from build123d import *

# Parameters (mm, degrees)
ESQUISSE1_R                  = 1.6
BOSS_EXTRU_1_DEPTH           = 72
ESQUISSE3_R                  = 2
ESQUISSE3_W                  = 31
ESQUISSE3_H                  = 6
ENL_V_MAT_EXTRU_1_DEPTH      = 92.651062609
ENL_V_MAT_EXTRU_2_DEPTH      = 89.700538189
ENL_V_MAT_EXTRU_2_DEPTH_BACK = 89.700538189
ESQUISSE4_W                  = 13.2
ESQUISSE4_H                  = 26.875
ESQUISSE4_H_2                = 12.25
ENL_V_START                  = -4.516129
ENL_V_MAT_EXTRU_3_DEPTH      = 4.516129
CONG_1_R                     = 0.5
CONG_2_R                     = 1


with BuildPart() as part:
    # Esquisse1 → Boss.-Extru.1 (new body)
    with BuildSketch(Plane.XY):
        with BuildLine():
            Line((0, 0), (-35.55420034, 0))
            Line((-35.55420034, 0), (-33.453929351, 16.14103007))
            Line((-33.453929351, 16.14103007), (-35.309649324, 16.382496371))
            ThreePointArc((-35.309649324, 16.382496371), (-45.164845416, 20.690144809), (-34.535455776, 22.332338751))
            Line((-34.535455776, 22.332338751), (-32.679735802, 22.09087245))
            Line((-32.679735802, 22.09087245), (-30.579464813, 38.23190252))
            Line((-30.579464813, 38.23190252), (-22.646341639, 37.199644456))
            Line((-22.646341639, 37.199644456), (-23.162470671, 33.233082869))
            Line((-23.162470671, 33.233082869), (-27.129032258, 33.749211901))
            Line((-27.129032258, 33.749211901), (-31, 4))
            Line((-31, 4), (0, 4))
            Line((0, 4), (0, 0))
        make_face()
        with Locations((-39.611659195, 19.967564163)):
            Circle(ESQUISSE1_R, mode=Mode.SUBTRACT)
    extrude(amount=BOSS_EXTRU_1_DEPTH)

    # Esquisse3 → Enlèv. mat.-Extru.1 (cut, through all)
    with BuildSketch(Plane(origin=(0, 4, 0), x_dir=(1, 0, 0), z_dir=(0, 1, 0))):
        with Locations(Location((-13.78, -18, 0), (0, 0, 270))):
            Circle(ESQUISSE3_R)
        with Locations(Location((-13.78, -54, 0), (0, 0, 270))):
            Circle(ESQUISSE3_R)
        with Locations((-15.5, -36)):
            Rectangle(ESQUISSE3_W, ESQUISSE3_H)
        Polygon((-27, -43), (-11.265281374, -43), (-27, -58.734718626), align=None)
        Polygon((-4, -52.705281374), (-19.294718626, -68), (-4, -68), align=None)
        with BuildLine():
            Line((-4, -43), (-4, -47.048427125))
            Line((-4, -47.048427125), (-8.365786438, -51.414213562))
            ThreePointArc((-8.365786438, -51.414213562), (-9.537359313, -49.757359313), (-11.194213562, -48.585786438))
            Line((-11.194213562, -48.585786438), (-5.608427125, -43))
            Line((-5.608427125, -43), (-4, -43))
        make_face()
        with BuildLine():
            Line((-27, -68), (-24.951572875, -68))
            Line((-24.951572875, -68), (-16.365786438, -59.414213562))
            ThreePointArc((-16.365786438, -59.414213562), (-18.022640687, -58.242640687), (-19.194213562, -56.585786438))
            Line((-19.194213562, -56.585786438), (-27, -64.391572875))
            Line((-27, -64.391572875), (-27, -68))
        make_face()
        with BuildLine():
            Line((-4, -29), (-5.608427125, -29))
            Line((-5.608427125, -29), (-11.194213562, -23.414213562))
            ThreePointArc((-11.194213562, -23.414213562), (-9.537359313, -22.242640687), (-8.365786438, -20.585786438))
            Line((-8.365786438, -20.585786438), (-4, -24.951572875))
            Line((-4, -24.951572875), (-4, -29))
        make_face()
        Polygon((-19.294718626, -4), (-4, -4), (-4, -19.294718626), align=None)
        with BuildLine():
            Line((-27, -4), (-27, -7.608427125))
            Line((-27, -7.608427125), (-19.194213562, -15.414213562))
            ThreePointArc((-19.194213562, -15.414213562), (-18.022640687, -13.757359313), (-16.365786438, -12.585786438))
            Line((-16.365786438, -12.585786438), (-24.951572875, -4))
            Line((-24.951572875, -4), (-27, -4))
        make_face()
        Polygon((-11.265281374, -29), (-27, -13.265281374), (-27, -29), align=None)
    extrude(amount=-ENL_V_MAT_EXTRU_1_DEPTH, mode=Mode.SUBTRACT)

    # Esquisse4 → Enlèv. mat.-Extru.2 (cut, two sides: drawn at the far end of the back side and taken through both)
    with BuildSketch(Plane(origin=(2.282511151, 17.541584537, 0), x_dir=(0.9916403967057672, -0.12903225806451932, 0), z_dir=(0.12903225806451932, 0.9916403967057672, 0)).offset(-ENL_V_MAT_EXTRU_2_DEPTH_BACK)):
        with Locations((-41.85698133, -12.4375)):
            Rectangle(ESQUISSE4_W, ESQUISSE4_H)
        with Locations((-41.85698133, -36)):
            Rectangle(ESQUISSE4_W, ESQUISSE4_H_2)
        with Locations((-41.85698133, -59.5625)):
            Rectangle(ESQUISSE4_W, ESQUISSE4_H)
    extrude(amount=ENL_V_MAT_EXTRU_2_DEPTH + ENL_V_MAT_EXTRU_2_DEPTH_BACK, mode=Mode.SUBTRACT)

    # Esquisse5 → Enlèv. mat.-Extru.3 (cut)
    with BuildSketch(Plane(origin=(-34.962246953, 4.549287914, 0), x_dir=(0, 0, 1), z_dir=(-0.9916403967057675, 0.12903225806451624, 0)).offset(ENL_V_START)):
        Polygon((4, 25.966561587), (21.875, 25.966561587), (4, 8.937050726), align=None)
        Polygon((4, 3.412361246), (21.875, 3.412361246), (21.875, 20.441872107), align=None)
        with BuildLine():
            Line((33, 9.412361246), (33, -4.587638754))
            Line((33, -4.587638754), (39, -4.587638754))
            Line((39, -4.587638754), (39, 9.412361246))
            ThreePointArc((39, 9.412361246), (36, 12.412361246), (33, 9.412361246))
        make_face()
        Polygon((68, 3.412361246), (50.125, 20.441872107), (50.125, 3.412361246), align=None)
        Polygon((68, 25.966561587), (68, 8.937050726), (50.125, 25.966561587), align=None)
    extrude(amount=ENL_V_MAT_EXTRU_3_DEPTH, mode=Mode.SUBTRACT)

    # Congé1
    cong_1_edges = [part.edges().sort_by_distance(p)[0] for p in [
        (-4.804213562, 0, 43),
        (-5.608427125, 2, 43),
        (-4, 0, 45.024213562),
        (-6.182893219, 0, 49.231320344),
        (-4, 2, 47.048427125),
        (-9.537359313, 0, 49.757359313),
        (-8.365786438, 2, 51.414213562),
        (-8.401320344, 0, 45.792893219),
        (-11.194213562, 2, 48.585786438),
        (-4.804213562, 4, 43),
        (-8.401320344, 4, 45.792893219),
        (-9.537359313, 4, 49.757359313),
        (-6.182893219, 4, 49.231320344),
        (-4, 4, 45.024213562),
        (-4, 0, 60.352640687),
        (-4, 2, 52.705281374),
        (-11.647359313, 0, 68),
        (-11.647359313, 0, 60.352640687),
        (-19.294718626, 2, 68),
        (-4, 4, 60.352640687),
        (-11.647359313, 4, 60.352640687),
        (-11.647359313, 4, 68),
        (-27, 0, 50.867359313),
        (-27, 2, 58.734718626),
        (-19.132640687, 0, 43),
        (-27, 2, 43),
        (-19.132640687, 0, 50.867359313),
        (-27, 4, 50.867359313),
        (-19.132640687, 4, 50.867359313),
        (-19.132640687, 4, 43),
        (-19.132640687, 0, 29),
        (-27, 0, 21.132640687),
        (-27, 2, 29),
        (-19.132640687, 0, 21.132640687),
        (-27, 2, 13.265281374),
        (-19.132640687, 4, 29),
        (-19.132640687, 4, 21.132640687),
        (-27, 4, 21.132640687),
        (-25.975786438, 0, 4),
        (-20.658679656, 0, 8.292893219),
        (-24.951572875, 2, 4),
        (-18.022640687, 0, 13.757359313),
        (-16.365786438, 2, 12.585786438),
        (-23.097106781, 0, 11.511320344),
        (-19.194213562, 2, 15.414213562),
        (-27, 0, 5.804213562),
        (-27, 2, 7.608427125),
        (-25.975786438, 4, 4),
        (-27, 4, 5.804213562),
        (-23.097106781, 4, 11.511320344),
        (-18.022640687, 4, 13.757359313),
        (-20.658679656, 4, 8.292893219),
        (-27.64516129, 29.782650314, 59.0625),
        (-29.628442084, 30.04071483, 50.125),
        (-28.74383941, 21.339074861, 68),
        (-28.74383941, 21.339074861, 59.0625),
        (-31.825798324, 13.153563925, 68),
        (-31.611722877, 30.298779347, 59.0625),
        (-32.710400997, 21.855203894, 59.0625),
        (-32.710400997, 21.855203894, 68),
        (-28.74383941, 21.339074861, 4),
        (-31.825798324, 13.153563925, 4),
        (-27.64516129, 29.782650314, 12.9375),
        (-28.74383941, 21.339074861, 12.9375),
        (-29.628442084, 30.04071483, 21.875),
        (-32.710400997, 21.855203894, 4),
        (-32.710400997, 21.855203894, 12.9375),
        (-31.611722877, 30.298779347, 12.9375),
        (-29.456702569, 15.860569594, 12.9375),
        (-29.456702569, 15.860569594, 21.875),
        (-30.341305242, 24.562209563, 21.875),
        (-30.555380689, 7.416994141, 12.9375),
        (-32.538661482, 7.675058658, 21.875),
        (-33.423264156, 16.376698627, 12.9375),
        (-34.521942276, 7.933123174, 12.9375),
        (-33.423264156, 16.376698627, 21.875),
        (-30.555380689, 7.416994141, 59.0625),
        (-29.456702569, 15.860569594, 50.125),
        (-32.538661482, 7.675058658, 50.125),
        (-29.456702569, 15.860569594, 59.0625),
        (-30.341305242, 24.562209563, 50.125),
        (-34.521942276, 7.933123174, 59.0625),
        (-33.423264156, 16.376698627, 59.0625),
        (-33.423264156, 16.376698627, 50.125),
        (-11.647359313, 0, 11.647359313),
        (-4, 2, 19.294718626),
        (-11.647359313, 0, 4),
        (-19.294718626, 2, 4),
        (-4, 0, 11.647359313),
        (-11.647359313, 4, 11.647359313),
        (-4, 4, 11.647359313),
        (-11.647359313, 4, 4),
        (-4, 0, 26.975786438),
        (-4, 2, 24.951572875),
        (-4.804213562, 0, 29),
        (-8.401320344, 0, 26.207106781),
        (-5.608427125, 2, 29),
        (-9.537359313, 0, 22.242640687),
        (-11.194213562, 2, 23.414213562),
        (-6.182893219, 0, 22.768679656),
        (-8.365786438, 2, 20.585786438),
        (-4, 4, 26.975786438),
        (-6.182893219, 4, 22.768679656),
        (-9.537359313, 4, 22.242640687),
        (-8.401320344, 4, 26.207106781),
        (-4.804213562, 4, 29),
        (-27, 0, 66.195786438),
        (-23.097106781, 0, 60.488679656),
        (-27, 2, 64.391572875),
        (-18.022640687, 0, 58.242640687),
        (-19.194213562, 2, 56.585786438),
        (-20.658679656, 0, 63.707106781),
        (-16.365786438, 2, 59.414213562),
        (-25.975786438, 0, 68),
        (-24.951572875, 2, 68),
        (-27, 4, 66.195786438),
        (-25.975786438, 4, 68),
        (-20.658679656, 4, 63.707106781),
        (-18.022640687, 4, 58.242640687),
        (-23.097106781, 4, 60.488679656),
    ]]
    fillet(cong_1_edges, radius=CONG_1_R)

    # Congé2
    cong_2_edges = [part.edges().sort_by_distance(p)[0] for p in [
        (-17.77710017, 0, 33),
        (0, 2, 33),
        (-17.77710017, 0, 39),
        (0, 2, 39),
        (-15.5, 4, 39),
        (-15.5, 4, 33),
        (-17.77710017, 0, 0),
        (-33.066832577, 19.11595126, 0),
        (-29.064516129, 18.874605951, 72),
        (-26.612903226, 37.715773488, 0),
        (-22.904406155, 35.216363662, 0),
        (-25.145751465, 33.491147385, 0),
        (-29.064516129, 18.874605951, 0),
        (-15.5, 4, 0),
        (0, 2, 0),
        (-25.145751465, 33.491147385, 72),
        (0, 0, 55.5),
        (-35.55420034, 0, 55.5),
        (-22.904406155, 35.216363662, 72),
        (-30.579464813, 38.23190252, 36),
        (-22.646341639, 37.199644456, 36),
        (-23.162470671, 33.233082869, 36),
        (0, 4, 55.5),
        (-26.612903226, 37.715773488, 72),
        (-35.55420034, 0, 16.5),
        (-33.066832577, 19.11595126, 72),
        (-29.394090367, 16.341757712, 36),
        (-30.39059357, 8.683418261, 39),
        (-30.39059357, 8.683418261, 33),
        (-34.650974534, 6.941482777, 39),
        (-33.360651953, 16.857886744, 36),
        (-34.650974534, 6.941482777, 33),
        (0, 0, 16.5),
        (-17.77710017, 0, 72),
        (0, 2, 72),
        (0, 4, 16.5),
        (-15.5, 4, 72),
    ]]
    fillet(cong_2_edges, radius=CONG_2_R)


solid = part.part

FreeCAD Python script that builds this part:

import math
import FreeCAD as App
import Part
import Sketcher
from FreeCAD import Vector


def edges_at(feature, points):
    """Names of the edges that pass closest to the given points."""
    edges = feature.Shape.Edges
    near = lambda p: min(range(len(edges)), key=lambda i: edges[i].distToShape(Part.Vertex(*p))[0])
    return sorted({f"Edge{near(p) + 1}" for p in points})

doc = App.newDocument("Part")
body = doc.addObject("PartDesign::Body", "Body")

# Sketch on XY plane
sketch1 = body.newObject("Sketcher::SketchObject", "Sketch")
sketch1.AttachmentSupport = (doc.getObject("XY_Plane"), [""])
sketch1.MapMode = "FlatFace"
sketch1.addGeometry(Part.LineSegment(Vector(-35.5542, 0, 0), Vector(0, 0, 0)), False)
sketch1.addGeometry(Part.LineSegment(Vector(0, 0, 0), Vector(0, 4, 0)), False)
sketch1.addGeometry(Part.LineSegment(Vector(0, 4, 0), Vector(-31, 4, 0)), False)
sketch1.addGeometry(Part.LineSegment(Vector(-31, 4, 0), Vector(-27.129032, 33.749212, 0)), False)
sketch1.addGeometry(Part.LineSegment(Vector(-27.129032, 33.749212, 0), Vector(-23.162471, 33.233083, 0)), False)
sketch1.addGeometry(Part.LineSegment(Vector(-23.162471, 33.233083, 0), Vector(-22.646342, 37.199644, 0)), False)
sketch1.addGeometry(Part.LineSegment(Vector(-22.646342, 37.199644, 0), Vector(-30.579465, 38.231903, 0)), False)
sketch1.addGeometry(Part.LineSegment(Vector(-30.579465, 38.231903, 0), Vector(-32.679736, 22.090872, 0)), False)
sketch1.addGeometry(Part.LineSegment(Vector(-32.679736, 22.090872, 0), Vector(-34.535456, 22.332339, 0)), False)
sketch1.addGeometry(Part.ArcOfCircle(Part.Circle(Vector(-39.611659, 19.967564, 0), Vector(0, 0, 1), 5.6), math.radians(24.978692), math.radians(320.193961)), False)
sketch1.addGeometry(Part.LineSegment(Vector(-35.309649, 16.382496, 0), Vector(-33.453929, 16.14103, 0)), False)
sketch1.addGeometry(Part.LineSegment(Vector(-33.453929, 16.14103, 0), Vector(-35.5542, 0, 0)), False)
sketch1.addGeometry(Part.Circle(Vector(-39.611659, 19.967564, 0), Vector(0, 0, 1), 1.6), False)
sketch1.addConstraint(Sketcher.Constraint("Coincident", 0, 2, 1, 1))
sketch1.addConstraint(Sketcher.Constraint("Coincident", 1, 2, 2, 1))
sketch1.addConstraint(Sketcher.Constraint("Coincident", 2, 2, 3, 1))
sketch1.addConstraint(Sketcher.Constraint("Coincident", 3, 2, 4, 1))
sketch1.addConstraint(Sketcher.Constraint("Coincident", 4, 2, 5, 1))
sketch1.addConstraint(Sketcher.Constraint("Coincident", 5, 2, 6, 1))
sketch1.addConstraint(Sketcher.Constraint("Coincident", 6, 2, 7, 1))
sketch1.addConstraint(Sketcher.Constraint("Coincident", 7, 2, 8, 1))
sketch1.addConstraint(Sketcher.Constraint("Coincident", 8, 2, 9, 1))
sketch1.addConstraint(Sketcher.Constraint("Coincident", 9, 2, 10, 1))
sketch1.addConstraint(Sketcher.Constraint("Coincident", 10, 2, 11, 1))
sketch1.addConstraint(Sketcher.Constraint("Coincident", 11, 2, 0, 1))
sketch1.addConstraint(Sketcher.Constraint("Horizontal", 0))
sketch1.addConstraint(Sketcher.Constraint("Vertical", 1))
sketch1.addConstraint(Sketcher.Constraint("Horizontal", 2))
sketch1.addConstraint(Sketcher.Constraint("Coincident", 0, 2, -1, 1))
sketch1.addConstraint(Sketcher.Constraint("Coincident", 12, 3, 9, 3))
sketch1.addConstraint(Sketcher.Constraint("Perpendicular", 3, 4))
sketch1.addConstraint(Sketcher.Constraint("Perpendicular", 4, 5))
sketch1.addConstraint(Sketcher.Constraint("Perpendicular", 5, 6))
sketch1.addConstraint(Sketcher.Constraint("Perpendicular", 6, 7))
sketch1.addConstraint(Sketcher.Constraint("Perpendicular", 7, 8))
sketch1.addConstraint(Sketcher.Constraint("Parallel", 8, 10))
sketch1.addConstraint(Sketcher.Constraint("Perpendicular", 10, 11))
sketch1.addConstraint(Sketcher.Constraint("Equal", 4, 5))
sketch1.addConstraint(Sketcher.Constraint("Equal", 8, 10))
sketch1.addConstraint(Sketcher.Constraint("Equal", 7, 11))
sketch1.addConstraint(Sketcher.Constraint("Diameter", 12, 3.2))
sketch1.addConstraint(Sketcher.Constraint("Radius", 9, 5.6))
sketch1.addConstraint(Sketcher.Constraint("DistanceX", 2, 2, 2, 1, 31.0))
sketch1.addConstraint(Sketcher.Constraint("DistanceY", 1, 1, 1, 2, 4.0))
sketch1.addConstraint(Sketcher.Constraint("Distance", 3, 30.0))
sketch1.addConstraint(Sketcher.Constraint("Distance", 4, 4.0))
sketch1.addConstraint(Sketcher.Constraint("Distance", 6, 8.0))
sketch1.addConstraint(Sketcher.Constraint("DistanceX", 0, 1, 0, 2, 35.5542))
sketch1.addConstraint(Sketcher.Constraint("Distance", 7, 16.2771))
sketch1.addConstraint(Sketcher.Constraint("DistanceX", 9, 3, -1, 1, 39.611659))
sketch1.addConstraint(Sketcher.Constraint("DistanceY", -1, 1, 3, 2, 33.749212))
pad1 = body.newObject("PartDesign::Pad", "Pad")
pad1.Profile = sketch1
pad1.Length = 72

# Sketch on XZ plane
sketch2 = body.newObject("Sketcher::SketchObject", "Sketch001")
sketch2.AttachmentSupport = (doc.getObject("XZ_Plane"), [""])
sketch2.MapMode = "FlatFace"
sketch2.AttachmentOffset = App.Placement(Vector(0, 0, -4), App.Rotation())
sketch2.addGeometry(Part.Circle(Vector(-13.78, 18, 0), Vector(0, 0, 1), 2), False)
sketch2.addGeometry(Part.Circle(Vector(-13.78, 54, 0), Vector(0, 0, 1), 2), False)
sketch2.addGeometry(Part.LineSegment(Vector(-31, 33, 0), Vector(-31, 39, 0)), False)
sketch2.addGeometry(Part.LineSegment(Vector(-31, 39, 0), Vector(0, 39, 0)), False)
sketch2.addGeometry(Part.LineSegment(Vector(0, 39, 0), Vector(0, 33, 0)), False)
sketch2.addGeometry(Part.LineSegment(Vector(0, 33, 0), Vector(-31, 33, 0)), False)
sketch2.addGeometry(Part.LineSegment(Vector(-11.265281, 43, 0), Vector(-27, 43, 0)), False)
sketch2.addGeometry(Part.LineSegment(Vector(-27, 43, 0), Vector(-27, 58.734719, 0)), False)
sketch2.addGeometry(Part.LineSegment(Vector(-27, 58.734719, 0), Vector(-11.265281, 43, 0)), False)
sketch2.addGeometry(Part.LineSegment(Vector(-4, 52.705281, 0), Vector(-19.294719, 68, 0)), False)
sketch2.addGeometry(Part.LineSegment(Vector(-19.294719, 68, 0), Vector(-4, 68, 0)), False)
sketch2.addGeometry(Part.LineSegment(Vector(-4, 68, 0), Vector(-4, 52.705281, 0)), False)
sketch2.addGeometry(Part.LineSegment(Vector(-4, 47.048427, 0), Vector(-4, 43, 0)), False)
sketch2.addGeometry(Part.LineSegment(Vector(-4, 43, 0), Vector(-5.608427, 43, 0)), False)
sketch2.addGeometry(Part.LineSegment(Vector(-5.608427, 43, 0), Vector(-11.194214, 48.585786, 0)), False)
sketch2.addGeometry(Part.ArcOfCircle(Part.Circle(Vector(-13.78, 54, 0), Vector(0, 0, 1), 6), math.radians(-64.471221), math.radians(-25.528779)), False)
sketch2.addGeometry(Part.LineSegment(Vector(-8.365786, 51.414214, 0), Vector(-4, 47.048427, 0)), False)
sketch2.addGeometry(Part.LineSegment(Vector(-27, 68, 0), Vector(-24.951573, 68, 0)), False)
sketch2.addGeometry(Part.LineSegment(Vector(-24.951573, 68, 0), Vector(-16.365786, 59.414214, 0)), False)
sketch2.addGeometry(Part.ArcOfCircle(Part.Circle(Vector(-13.78, 54, 0), Vector(0, 0, 1), 6), math.radians(115.528779), math.radians(154.471221)), False)
sketch2.addGeometry(Part.LineSegment(Vector(-19.194214, 56.585786, 0), Vector(-27, 64.391573, 0)), False)
sketch2.addGeometry(Part.LineSegment(Vector(-27, 64.391573, 0), Vector(-27, 68, 0)), False)
sketch2.addGeometry(Part.LineSegment(Vector(-5.608427, 29, 0), Vector(-4, 29, 0)), False)
sketch2.addGeometry(Part.LineSegment(Vector(-4, 29, 0), Vector(-4, 24.951573, 0)), False)
sketch2.addGeometry(Part.LineSegment(Vector(-4, 24.951573, 0), Vector(-8.365786, 20.585786, 0)), False)
sketch2.addGeometry(Part.ArcOfCircle(Part.Circle(Vector(-13.78, 18, 0), Vector(0, 0, 1), 6), math.radians(25.528779), math.radians(64.471221)), False)
sketch2.addGeometry(Part.LineSegment(Vector(-11.194214, 23.414214, 0), Vector(-5.608427, 29, 0)), False)
sketch2.addGeometry(Part.LineSegment(Vector(-4, 4, 0), Vector(-19.294719, 4, 0)), False)
sketch2.addGeometry(Part.LineSegment(Vector(-19.294719, 4, 0), Vector(-4, 19.294719, 0)), False)
sketch2.addGeometry(Part.LineSegment(Vector(-4, 19.294719, 0), Vector(-4, 4, 0)), False)
sketch2.addGeometry(Part.LineSegment(Vector(-27, 4, 0), Vector(-27, 7.608427, 0)), False)
sketch2.addGeometry(Part.LineSegment(Vector(-27, 7.608427, 0), Vector(-19.194214, 15.414214, 0)), False)
sketch2.addGeometry(Part.ArcOfCircle(Part.Circle(Vector(-13.78, 18, 0), Vector(0, 0, 1), 6), math.radians(-154.471221), math.radians(-115.528779)), False)
sketch2.addGeometry(Part.LineSegment(Vector(-16.365786, 12.585786, 0), Vector(-24.951573, 4, 0)), False)
sketch2.addGeometry(Part.LineSegment(Vector(-24.951573, 4, 0), Vector(-27, 4, 0)), False)
sketch2.addGeometry(Part.LineSegment(Vector(-11.265281, 29, 0), Vector(-27, 13.265281, 0)), False)
sketch2.addGeometry(Part.LineSegment(Vector(-27, 13.265281, 0), Vector(-27, 29, 0)), False)
sketch2.addGeometry(Part.LineSegment(Vector(-27, 29, 0), Vector(-11.265281, 29, 0)), False)
sketch2.addConstraint(Sketcher.Constraint("Coincident", 2, 2, 3, 1))
sketch2.addConstraint(Sketcher.Constraint("Coincident", 3, 2, 4, 1))
sketch2.addConstraint(Sketcher.Constraint("Coincident", 4, 2, 5, 1))
sketch2.addConstraint(Sketcher.Constraint("Coincident", 5, 2, 2, 1))
sketch2.addConstraint(Sketcher.Constraint("Coincident", 6, 2, 7, 1))
sketch2.addConstraint(Sketcher.Constraint("Coincident", 7, 2, 8, 1))
sketch2.addConstraint(Sketcher.Constraint("Coincident", 8, 2, 6, 1))
sketch2.addConstraint(Sketcher.Constraint("Coincident", 9, 2, 10, 1))
sketch2.addConstraint(Sketcher.Constraint("Coincident", 10, 2, 11, 1))
sketch2.addConstraint(Sketcher.Constraint("Coincident", 11, 2, 9, 1))
sketch2.addConstraint(Sketcher.Constraint("Coincident", 12, 2, 13, 1))
sketch2.addConstraint(Sketcher.Constraint("Coincident", 13, 2, 14, 1))
sketch2.addConstraint(Sketcher.Constraint("Coincident", 14, 2, 15, 1))
sketch2.addConstraint(Sketcher.Constraint("Coincident", 15, 2, 16, 1))
sketch2.addConstraint(Sketcher.Constraint("Coincident", 16, 2, 12, 1))
sketch2.addConstraint(Sketcher.Constraint("Coincident", 17, 2, 18, 1))
sketch2.addConstraint(Sketcher.Constraint("Coincident", 18, 2, 19, 1))
sketch2.addConstraint(Sketcher.Constraint("Coincident", 19, 2, 20, 1))
sketch2.addConstraint(Sketcher.Constraint("Coincident", 20, 2, 21, 1))
sketch2.addConstraint(Sketcher.Constraint("Coincident", 21, 2, 17, 1))
sketch2.addConstraint(Sketcher.Constraint("Coincident", 22, 2, 23, 1))
sketch2.addConstraint(Sketcher.Constraint("Coincident", 23, 2, 24, 1))
sketch2.addConstraint(Sketcher.Constraint("Coincident", 24, 2, 25, 1))
sketch2.addConstraint(Sketcher.Constraint("Coincident", 25, 2, 26, 1))
sketch2.addConstraint(Sketcher.Constraint("Coincident", 26, 2, 22, 1))
sketch2.addConstraint(Sketcher.Constraint("Coincident", 27, 2, 28, 1))
sketch2.addConstraint(Sketcher.Constraint("Coincident", 28, 2, 29, 1))
sketch2.addConstraint(Sketcher.Constraint("Coincident", 29, 2, 27, 1))
sketch2.addConstraint(Sketcher.Constraint("Coincident", 30, 2, 31, 1))
sketch2.addConstraint(Sketcher.Constraint("Coincident", 31, 2, 32, 1))
sketch2.addConstraint(Sketcher.Constraint("Coincident", 32, 2, 33, 1))
sketch2.addConstraint(Sketcher.Constraint("Coincident", 33, 2, 34, 1))
sketch2.addConstraint(Sketcher.Constraint("Coincident", 34, 2, 30, 1))
sketch2.addConstraint(Sketcher.Constraint("Coincident", 35, 2, 36, 1))
sketch2.addConstraint(Sketcher.Constraint("Coincident", 36, 2, 37, 1))
sketch2.addConstraint(Sketcher.Constraint("Coincident", 37, 2, 35, 1))
sketch2.addConstraint(Sketcher.Constraint("Vertical", 2))
sketch2.addConstraint(Sketcher.Constraint("Horizontal", 3))
sketch2.addConstraint(Sketcher.Constraint("Vertical", 4))
sketch2.addConstraint(Sketcher.Constraint("Horizontal", 5))
sketch2.addConstraint(Sketcher.Constraint("Horizontal", 6))
sketch2.addConstraint(Sketcher.Constraint("Vertical", 7))
sketch2.addConstraint(Sketcher.Constraint("Horizontal", 10))
sketch2.addConstraint(Sketcher.Constraint("Vertical", 11))
sketch2.addConstraint(Sketcher.Constraint("Vertical", 12))
sketch2.addConstraint(Sketcher.Constraint("Horizontal", 13))
sketch2.addConstraint(Sketcher.Constraint("Horizontal", 17))
sketch2.addConstraint(Sketcher.Constraint("Vertical", 21))
sketch2.addConstraint(Sketcher.Constraint("Horizontal", 22))
sketch2.addConstraint(Sketcher.Constraint("Vertical", 23))
sketch2.addConstraint(Sketcher.Constraint("Horizontal", 27))
sketch2.addConstraint(Sketcher.Constraint("Vertical", 29))
sketch2.addConstraint(Sketcher.Constraint("Vertical", 30))
sketch2.addConstraint(Sketcher.Constraint("Horizontal", 34))
sketch2.addConstraint(Sketcher.Constraint("Vertical", 36))
sketch2.addConstraint(Sketcher.Constraint("Horizontal", 37))
sketch2.addConstraint(Sketcher.Constraint("Coincident", 15, 3, 1, 3))
sketch2.addConstraint(Sketcher.Constraint("Coincident", 19, 3, 1, 3))
sketch2.addConstraint(Sketcher.Constraint("Coincident", 25, 3, 0, 3))
sketch2.addConstraint(Sketcher.Constraint("Coincident", 32, 3, 0, 3))
sketch2.addConstraint(Sketcher.Constraint("Equal", 0, 1))
sketch2.addConstraint(Sketcher.Constraint("Equal", 15, 19))
sketch2.addConstraint(Sketcher.Constraint("Equal", 19, 25))
sketch2.addConstraint(Sketcher.Constraint("Equal", 25, 32))
sketch2.addConstraint(Sketcher.Constraint("PointOnObject", 3, 2, -2))
sketch2.addConstraint(Sketcher.Constraint("Parallel", 8, 9))
sketch2.addConstraint(Sketcher.Constraint("Parallel", 9, 14))
sketch2.addConstraint(Sketcher.Constraint("Parallel", 14, 16))
sketch2.addConstraint(Sketcher.Constraint("Parallel", 16, 18))
sketch2.addConstraint(Sketcher.Constraint("Parallel", 18, 20))
sketch2.addConstraint(Sketcher.Constraint("Perpendicular", 20, 24))
sketch2.addConstraint(Sketcher.Constraint("Parallel", 24, 26))
sketch2.addConstraint(Sketcher.Constraint("Parallel", 26, 28))
sketch2.addConstraint(Sketcher.Constraint("Parallel", 28, 31))
sketch2.addConstraint(Sketcher.Constraint("Parallel", 31, 33))
sketch2.addConstraint(Sketcher.Constraint("Parallel", 33, 35))
sketch2.addConstraint(Sketcher.Constraint("Horizontal", 8, 2, 12, 2))
sketch2.addConstraint(Sketcher.Constraint("Horizontal", 10, 2, 17, 2))
sketch2.addConstraint(Sketcher.Constraint("Horizontal", 29, 2, 33, 2))
sketch2.addConstraint(Sketcher.Constraint("Horizontal", 26, 2, 36, 2))
sketch2.addConstraint(Sketcher.Constraint("Vertical", 0, 3, 1, 3))
sketch2.addConstraint(Sketcher.Constraint("Vertical", 11, 2, 12, 2))
sketch2.addConstraint(Sketcher.Constraint("Vertical", 7, 2, 20, 2))
sketch2.addConstraint(Sketcher.Constraint("Vertical", 16, 2, 22, 2))
sketch2.addConstraint(Sketcher.Constraint("Vertical", 15, 2, 24, 2))
sketch2.addConstraint(Sketcher.Constraint("Vertical", 14, 2, 25, 2))
sketch2.addConstraint(Sketcher.Constraint("Vertical", 13, 2, 26, 2))
sketch2.addConstraint(Sketcher.Constraint("Vertical", 9, 2, 27, 2))
sketch2.addConstraint(Sketcher.Constraint("Vertical", 23, 2, 28, 2))
sketch2.addConstraint(Sketcher.Constraint("Vertical", 21, 2, 30, 2))
sketch2.addConstraint(Sketcher.Constraint("Vertical", 19, 2, 31, 2))
sketch2.addConstraint(Sketcher.Constraint("Vertical", 18, 2, 32, 2))
sketch2.addConstraint(Sketcher.Constraint("Vertical", 17, 2, 33, 2))
sketch2.addConstraint(Sketcher.Constraint("Vertical", 34, 2, 35, 2))
sketch2.addConstraint(Sketcher.Constraint("Vertical", 8, 2, 37, 2))
sketch2.addConstraint(Sketcher.Constraint("Equal", 37, 7))
sketch2.addConstraint(Sketcher.Constraint("Diameter", 0, 4.0))
sketch2.addConstraint(Sketcher.Constraint("Radius", 15, 6.0))
sketch2.addConstraint(Sketcher.Constraint("DistanceX", 3, 1, 3, 2, 31.0))
sketch2.addConstraint(Sketcher.Constraint("DistanceY", 2, 1, 2, 2, 6.0))
sketch2.addConstraint(Sketcher.Constraint("DistanceY", -1, 1, 0, 3, 18.0))
sketch2.addConstraint(Sketcher.Constraint("DistanceY", -1, 1, 1, 3, 54.0))
sketch2.addConstraint(Sketcher.Constraint("DistanceY", -1, 1, 2, 2, 39.0))
sketch2.addConstraint(Sketcher.Constraint("DistanceX", 6, 2, -1, 1, 27.0))
sketch2.addConstraint(Sketcher.Constraint("DistanceY", -1, 1, 6, 2, 43.0))
sketch2.addConstraint(Sketcher.Constraint("DistanceY", -1, 1, 9, 2, 68.0))
sketch2.addConstraint(Sketcher.Constraint("DistanceX", 10, 2, -1, 1, 4.0))
sketch2.addConstraint(Sketcher.Constraint("DistanceX", 31, 2, 25, 2, 8.0))
sketch2.addConstraint(Sketcher.Constraint("DistanceY", 31, 2, 25, 2, 8.0))
sketch2.addConstraint(Sketcher.Constraint("Distance", 9, 21.629999))
sketch2.addConstraint(Sketcher.Constraint("DistanceX", 0, 3, -1, 1, 13.78))
sketch2.addConstraint(Sketcher.Constraint("DistanceX", 6, 2, 6, 1, 15.734719))
sketch2.addConstraint(Sketcher.Constraint("DistanceX", 17, 1, 17, 2, 2.048427))
sketch2.addConstraint(Sketcher.Constraint("DistanceY", 12, 2, 12, 1, 4.048427))
pocket1 = body.newObject("PartDesign::Pocket", "Pocket")
pocket1.Profile = sketch2
pocket1.Type = "ThroughAll"
pocket1.Reversed = True

# Sketch on an angled plane
sketch3 = body.newObject("Sketcher::SketchObject", "Sketch002")
sketch3.Placement = App.Placement(Vector(2.282511, 17.541585, 0), App.Rotation(Vector(0.991640397, -0.129032258, 0), Vector(0, 0, -1.000000001), Vector(0.129032258, 0.991640397, 0), "ZXY"))
sketch3.addGeometry(Part.LineSegment(Vector(-48.456981, 1, 0), Vector(-48.456981, -25.875, 0)), False)
sketch3.addGeometry(Part.LineSegment(Vector(-48.456981, -25.875, 0), Vector(-35.256981, -25.875, 0)), False)
sketch3.addGeometry(Part.LineSegment(Vector(-35.256981, -25.875, 0), Vector(-35.256981, 1, 0)), False)
sketch3.addGeometry(Part.LineSegment(Vector(-35.256981, 1, 0), Vector(-48.456981, 1, 0)), False)
sketch3.addGeometry(Part.LineSegment(Vector(-48.456981, -29.875, 0), Vector(-48.456981, -42.125, 0)), False)
sketch3.addGeometry(Part.LineSegment(Vector(-48.456981, -42.125, 0), Vector(-35.256981, -42.125, 0)), False)
sketch3.addGeometry(Part.LineSegment(Vector(-35.256981, -42.125, 0), Vector(-35.256981, -29.875, 0)), False)
sketch3.addGeometry(Part.LineSegment(Vector(-35.256981, -29.875, 0), Vector(-48.456981, -29.875, 0)), False)
sketch3.addGeometry(Part.LineSegment(Vector(-48.456981, -46.125, 0), Vector(-48.456981, -73, 0)), False)
sketch3.addGeometry(Part.LineSegment(Vector(-48.456981, -73, 0), Vector(-35.256981, -73, 0)), False)
sketch3.addGeometry(Part.LineSegment(Vector(-35.256981, -73, 0), Vector(-35.256981, -46.125, 0)), False)
sketch3.addGeometry(Part.LineSegment(Vector(-35.256981, -46.125, 0), Vector(-48.456981, -46.125, 0)), False)
sketch3.addConstraint(Sketcher.Constraint("Coincident", 0, 2, 1, 1))
sketch3.addConstraint(Sketcher.Constraint("Coincident", 1, 2, 2, 1))
sketch3.addConstraint(Sketcher.Constraint("Coincident", 2, 2, 3, 1))
sketch3.addConstraint(Sketcher.Constraint("Coincident", 3, 2, 0, 1))
sketch3.addConstraint(Sketcher.Constraint("Coincident", 4, 2, 5, 1))
sketch3.addConstraint(Sketcher.Constraint("Coincident", 5, 2, 6, 1))
sketch3.addConstraint(Sketcher.Constraint("Coincident", 6, 2, 7, 1))
sketch3.addConstraint(Sketcher.Constraint("Coincident", 7, 2, 4, 1))
sketch3.addConstraint(Sketcher.Constraint("Coincident", 8, 2, 9, 1))
sketch3.addConstraint(Sketcher.Constraint("Coincident", 9, 2, 10, 1))
sketch3.addConstraint(Sketcher.Constraint("Coincident", 10, 2, 11, 1))
sketch3.addConstraint(Sketcher.Constraint("Coincident", 11, 2, 8, 1))
sketch3.addConstraint(Sketcher.Constraint("Vertical", 0))
sketch3.addConstraint(Sketcher.Constraint("Horizontal", 1))
sketch3.addConstraint(Sketcher.Constraint("Vertical", 2))
sketch3.addConstraint(Sketcher.Constraint("Horizontal", 3))
sketch3.addConstraint(Sketcher.Constraint("Vertical", 4))
sketch3.addConstraint(Sketcher.Constraint("Horizontal", 5))
sketch3.addConstraint(Sketcher.Constraint("Vertical", 6))
sketch3.addConstraint(Sketcher.Constraint("Horizontal", 7))
sketch3.addConstraint(Sketcher.Constraint("Vertical", 8))
sketch3.addConstraint(Sketcher.Constraint("Horizontal", 9))
sketch3.addConstraint(Sketcher.Constraint("Vertical", 10))
sketch3.addConstraint(Sketcher.Constraint("Horizontal", 11))
sketch3.addConstraint(Sketcher.Constraint("Vertical", 3, 2, 4, 2))
sketch3.addConstraint(Sketcher.Constraint("Vertical", 2, 2, 5, 2))
sketch3.addConstraint(Sketcher.Constraint("Vertical", 7, 2, 8, 2))
sketch3.addConstraint(Sketcher.Constraint("Vertical", 6, 2, 9, 2))
sketch3.addConstraint(Sketcher.Constraint("Equal", 2, 8))
sketch3.addConstraint(Sketcher.Constraint("DistanceX", 1, 1, 1, 2, 13.2))
sketch3.addConstraint(Sketcher.Constraint("DistanceY", -1, 1, 2, 2, 1.0))
sketch3.addConstraint(Sketcher.Constraint("DistanceY", 8, 2, -1, 1, 73.0))
sketch3.addConstraint(Sketcher.Constraint("DistanceY", 6, 2, 1, 2, 4.0))
sketch3.addConstraint(Sketcher.Constraint("DistanceY", 10, 2, 5, 2, 4.0))
sketch3.addConstraint(Sketcher.Constraint("DistanceY", 4, 2, 4, 1, 12.25))
sketch3.addConstraint(Sketcher.Constraint("DistanceX", 0, 2, -1, 1, 48.456981))
pocket2 = body.newObject("PartDesign::Pocket", "Pocket001")
pocket2.Profile = sketch3
pocket2.Type = "ThroughAll"
pocket2.Midplane = True

# Sketch on an angled plane
sketch4 = body.newObject("Sketcher::SketchObject", "Sketch003")
sketch4.Placement = App.Placement(Vector(-30.483871, 3.966562, 0), App.Rotation(Vector(0, 0, 1), Vector(0.129032258, 0.991640397, 0), Vector(-0.991640397, 0.129032258, 0), "ZXY"))
sketch4.addGeometry(Part.LineSegment(Vector(21.875, 25.966562, 0), Vector(4, 25.966562, 0)), False)
sketch4.addGeometry(Part.LineSegment(Vector(4, 25.966562, 0), Vector(4, 8.937051, 0)), False)
sketch4.addGeometry(Part.LineSegment(Vector(4, 8.937051, 0), Vector(21.875, 25.966562, 0)), False)
sketch4.addGeometry(Part.LineSegment(Vector(4, 3.412361, 0), Vector(21.875, 3.412361, 0)), False)
sketch4.addGeometry(Part.LineSegment(Vector(21.875, 3.412361, 0), Vector(21.875, 20.441872, 0)), False)
sketch4.addGeometry(Part.LineSegment(Vector(21.875, 20.441872, 0), Vector(4, 3.412361, 0)), False)
sketch4.addGeometry(Part.LineSegment(Vector(33, 9.412361, 0), Vector(33, -4.587639, 0)), False)
sketch4.addGeometry(Part.LineSegment(Vector(33, -4.587639, 0), Vector(39, -4.587639, 0)), False)
sketch4.addGeometry(Part.LineSegment(Vector(39, -4.587639, 0), Vector(39, 9.412361, 0)), False)
sketch4.addGeometry(Part.ArcOfCircle(Part.Circle(Vector(36, 9.412361, 0), Vector(0, 0, 1), 3), math.radians(0), math.radians(180)), False)
sketch4.addGeometry(Part.LineSegment(Vector(68, 3.412361, 0), Vector(50.125, 20.441872, 0)), False)
sketch4.addGeometry(Part.LineSegment(Vector(50.125, 20.441872, 0), Vector(50.125, 3.412361, 0)), False)
sketch4.addGeometry(Part.LineSegment(Vector(50.125, 3.412361, 0), Vector(68, 3.412361, 0)), False)
sketch4.addGeometry(Part.LineSegment(Vector(68, 8.937051, 0), Vector(68, 25.966562, 0)), False)
sketch4.addGeometry(Part.LineSegment(Vector(68, 25.966562, 0), Vector(50.125, 25.966562, 0)), False)
sketch4.addGeometry(Part.LineSegment(Vector(50.125, 25.966562, 0), Vector(68, 8.937051, 0)), False)
sketch4.addConstraint(Sketcher.Constraint("Coincident", 0, 2, 1, 1))
sketch4.addConstraint(Sketcher.Constraint("Coincident", 1, 2, 2, 1))
sketch4.addConstraint(Sketcher.Constraint("Coincident", 2, 2, 0, 1))
sketch4.addConstraint(Sketcher.Constraint("Coincident", 3, 2, 4, 1))
sketch4.addConstraint(Sketcher.Constraint("Coincident", 4, 2, 5, 1))
sketch4.addConstraint(Sketcher.Constraint("Coincident", 5, 2, 3, 1))
sketch4.addConstraint(Sketcher.Constraint("Coincident", 6, 2, 7, 1))
sketch4.addConstraint(Sketcher.Constraint("Coincident", 7, 2, 8, 1))
sketch4.addConstraint(Sketcher.Constraint("Tangent", 8, 2, 9, 1))
sketch4.addConstraint(Sketcher.Constraint("Tangent", 9, 2, 6, 1))
sketch4.addConstraint(Sketcher.Constraint("Coincident", 10, 2, 11, 1))
sketch4.addConstraint(Sketcher.Constraint("Coincident", 11, 2, 12, 1))
sketch4.addConstraint(Sketcher.Constraint("Coincident", 12, 2, 10, 1))
sketch4.addConstraint(Sketcher.Constraint("Coincident", 13, 2, 14, 1))
sketch4.addConstraint(Sketcher.Constraint("Coincident", 14, 2, 15, 1))
sketch4.addConstraint(Sketcher.Constraint("Coincident", 15, 2, 13, 1))
sketch4.addConstraint(Sketcher.Constraint("Horizontal", 0))
sketch4.addConstraint(Sketcher.Constraint("Vertical", 1))
sketch4.addConstraint(Sketcher.Constraint("Horizontal", 3))
sketch4.addConstraint(Sketcher.Constraint("Vertical", 4))
sketch4.addConstraint(Sketcher.Constraint("Vertical", 6))
sketch4.addConstraint(Sketcher.Constraint("Horizontal", 7))
sketch4.addConstraint(Sketcher.Constraint("Vertical", 8))
sketch4.addConstraint(Sketcher.Constraint("Vertical", 11))
sketch4.addConstraint(Sketcher.Constraint("Horizontal", 12))
sketch4.addConstraint(Sketcher.Constraint("Vertical", 13))
sketch4.addConstraint(Sketcher.Constraint("Horizontal", 14))
sketch4.addConstraint(Sketcher.Constraint("Parallel", 2, 5))
sketch4.addConstraint(Sketcher.Constraint("Parallel", 10, 15))
sketch4.addConstraint(Sketcher.Constraint("Horizontal", 4, 2, 10, 2))
sketch4.addConstraint(Sketcher.Constraint("Horizontal", 5, 2, 11, 2))
sketch4.addConstraint(Sketcher.Constraint("Horizontal", 2, 2, 13, 2))
sketch4.addConstraint(Sketcher.Constraint("Horizontal", 1, 2, 15, 2))
sketch4.addConstraint(Sketcher.Constraint("Vertical", 2, 2, 3, 2))
sketch4.addConstraint(Sketcher.Constraint("Vertical", 1, 2, 5, 2))
sketch4.addConstraint(Sketcher.Constraint("Vertical", 12, 2, 13, 2))
sketch4.addConstraint(Sketcher.Constraint("Equal", 3, 12))
sketch4.addConstraint(Sketcher.Constraint("Radius", 9, 3.0))
sketch4.addConstraint(Sketcher.Constraint("DistanceY", 6, 2, 6, 1, 14.0))
sketch4.addConstraint(Sketcher.Constraint("DistanceX", -1, 1, 9, 3, 36.0))
sketch4.addConstraint(Sketcher.Constraint("DistanceX", -1, 1, 0, 2, 4.0))
sketch4.addConstraint(Sketcher.Constraint("DistanceX", -1, 1, 12, 2, 68.0))
sketch4.addConstraint(Sketcher.Constraint("DistanceY", 3, 2, 9, 3, 6.0))
sketch4.addConstraint(Sketcher.Constraint("DistanceX", 0, 2, 0, 1, 17.875))
sketch4.addConstraint(Sketcher.Constraint("DistanceY", 1, 2, 1, 1, 17.029511))
sketch4.addConstraint(Sketcher.Constraint("DistanceY", 9, 3, 0, 2, 16.5542))
sketch4.addConstraint(Sketcher.Constraint("DistanceY", -1, 1, 9, 3, 9.412361))
pocket3 = body.newObject("PartDesign::Pocket", "Pocket002")
pocket3.Profile = sketch4
pocket3.Length = 4.516129
pocket3.Reversed = True
doc.recompute()

fillet = body.newObject("PartDesign::Fillet", "Fillet")
fillet.Base = (pocket3, edges_at(pocket3, [
    (-4.804, 0, 43),
    (-5.608, 2, 43),
    (-4, 0, 45.024),
    (-6.183, 0, 49.231),
    (-4, 2, 47.048),
    (-9.537, 0, 49.757),
    (-8.366, 2, 51.414),
    (-8.401, 0, 45.793),
    (-11.194, 2, 48.586),
    (-4.804, 4, 43),
    (-8.401, 4, 45.793),
    (-9.537, 4, 49.757),
    (-6.183, 4, 49.231),
    (-4, 4, 45.024),
    (-4, 0, 60.353),
    (-4, 2, 52.705),
    (-11.647, 0, 68),
    (-11.647, 0, 60.353),
    (-19.295, 2, 68),
    (-4, 4, 60.353),
    (-11.647, 4, 60.353),
    (-11.647, 4, 68),
    (-27, 0, 50.867),
    (-27, 2, 58.735),
    (-19.133, 0, 43),
    (-27, 2, 43),
    (-19.133, 0, 50.867),
    (-27, 4, 50.867),
    (-19.133, 4, 50.867),
    (-19.133, 4, 43),
    (-19.133, 0, 29),
    (-27, 0, 21.133),
    (-27, 2, 29),
    (-19.133, 0, 21.133),
    (-27, 2, 13.265),
    (-19.133, 4, 29),
    (-19.133, 4, 21.133),
    (-27, 4, 21.133),
    (-25.976, 0, 4),
    (-20.659, 0, 8.293),
    (-24.952, 2, 4),
    (-18.023, 0, 13.757),
    (-16.366, 2, 12.586),
    (-23.097, 0, 11.511),
    (-19.194, 2, 15.414),
    (-27, 0, 5.804),
    (-27, 2, 7.608),
    (-25.976, 4, 4),
    (-27, 4, 5.804),
    (-23.097, 4, 11.511),
    (-18.023, 4, 13.757),
    (-20.659, 4, 8.293),
    (-27.645, 29.783, 59.062),
    (-29.628, 30.041, 50.125),
    (-28.744, 21.339, 68),
    (-28.744, 21.339, 59.062),
    (-31.826, 13.154, 68),
    (-31.612, 30.299, 59.062),
    (-33.067, 19.116, 61.962),
    (-33.067, 19.116, 68),
    (-28.744, 21.339, 4),
    (-31.826, 13.154, 4),
    (-27.645, 29.783, 12.938),
    (-28.744, 21.339, 12.938),
    (-29.628, 30.041, 21.875),
    (-33.067, 19.116, 4),
    (-33.067, 19.116, 10.038),
    (-31.612, 30.299, 12.938),
    (-29.457, 15.861, 12.938),
    (-29.457, 15.861, 21.875),
    (-30.341, 24.562, 21.875),
    (-30.555, 7.417, 12.938),
    (-32.539, 7.675, 21.875),
    (-33.067, 19.116, 15.837),
    (-34.522, 7.933, 12.938),
    (-33.067, 19.116, 21.875),
    (-30.555, 7.417, 59.062),
    (-29.457, 15.861, 50.125),
    (-32.539, 7.675, 50.125),
    (-29.457, 15.861, 59.062),
    (-30.341, 24.562, 50.125),
    (-34.522, 7.933, 59.062),
    (-33.067, 19.116, 56.163),
    (-33.067, 19.116, 50.125),
    (-11.647, 0, 11.647),
    (-4, 2, 19.295),
    (-11.647, 0, 4),
    (-19.295, 2, 4),
    (-4, 0, 11.647),
    (-11.647, 4, 11.647),
    (-4, 4, 11.647),
    (-11.647, 4, 4),
    (-4, 0, 26.976),
    (-4, 2, 24.952),
    (-4.804, 0, 29),
    (-8.401, 0, 26.207),
    (-5.608, 2, 29),
    (-9.537, 0, 22.243),
    (-11.194, 2, 23.414),
    (-6.183, 0, 22.769),
    (-8.366, 2, 20.586),
    (-4, 4, 26.976),
    (-6.183, 4, 22.769),
    (-9.537, 4, 22.243),
    (-8.401, 4, 26.207),
    (-4.804, 4, 29),
    (-27, 0, 66.196),
    (-23.097, 0, 60.489),
    (-27, 2, 64.392),
    (-18.023, 0, 58.243),
    (-19.194, 2, 56.586),
    (-20.659, 0, 63.707),
    (-16.366, 2, 59.414),
    (-25.976, 0, 68),
    (-24.952, 2, 68),
    (-27, 4, 66.196),
    (-25.976, 4, 68),
    (-20.659, 4, 63.707),
    (-18.023, 4, 58.243),
    (-23.097, 4, 60.489),
]))
fillet.Radius = 0.5
doc.recompute()

fillet2 = body.newObject("PartDesign::Fillet", "Fillet001")
fillet2.Base = (fillet, edges_at(fillet, [
    (-17.777, 0, 33),
    (0, 2, 33),
    (-17.777, 0, 39),
    (0, 2, 39),
    (-15.5, 4, 39),
    (-15.5, 4, 33),
    (-17.777, 0, 0),
    (-33.067, 19.116, 0),
    (-29.065, 18.875, 72),
    (-26.613, 37.716, 0),
    (-22.904, 35.216, 0),
    (-25.146, 33.491, 0),
    (-29.065, 18.875, 0),
    (-15.5, 4, 0),
    (0, 2, 0),
    (-25.146, 33.491, 72),
    (0, 0, 55.5),
    (-35.554, 0, 55.5),
    (-22.904, 35.216, 72),
    (-30.579, 38.232, 36),
    (-22.646, 37.2, 36),
    (-23.162, 33.233, 36),
    (0, 4, 55.5),
    (-26.613, 37.716, 72),
    (-35.554, 0, 16.5),
    (-33.067, 19.116, 72),
    (-29.394, 16.342, 36),
    (-30.391, 8.683, 39),
    (-30.391, 8.683, 33),
    (-34.651, 6.941, 39),
    (-33.361, 16.858, 36),
    (-34.651, 6.941, 33),
    (0, 0, 16.5),
    (-17.777, 0, 72),
    (0, 2, 72),
    (0, 4, 16.5),
    (-15.5, 4, 72),
]))
fillet2.Radius = 1

doc.recompute()
